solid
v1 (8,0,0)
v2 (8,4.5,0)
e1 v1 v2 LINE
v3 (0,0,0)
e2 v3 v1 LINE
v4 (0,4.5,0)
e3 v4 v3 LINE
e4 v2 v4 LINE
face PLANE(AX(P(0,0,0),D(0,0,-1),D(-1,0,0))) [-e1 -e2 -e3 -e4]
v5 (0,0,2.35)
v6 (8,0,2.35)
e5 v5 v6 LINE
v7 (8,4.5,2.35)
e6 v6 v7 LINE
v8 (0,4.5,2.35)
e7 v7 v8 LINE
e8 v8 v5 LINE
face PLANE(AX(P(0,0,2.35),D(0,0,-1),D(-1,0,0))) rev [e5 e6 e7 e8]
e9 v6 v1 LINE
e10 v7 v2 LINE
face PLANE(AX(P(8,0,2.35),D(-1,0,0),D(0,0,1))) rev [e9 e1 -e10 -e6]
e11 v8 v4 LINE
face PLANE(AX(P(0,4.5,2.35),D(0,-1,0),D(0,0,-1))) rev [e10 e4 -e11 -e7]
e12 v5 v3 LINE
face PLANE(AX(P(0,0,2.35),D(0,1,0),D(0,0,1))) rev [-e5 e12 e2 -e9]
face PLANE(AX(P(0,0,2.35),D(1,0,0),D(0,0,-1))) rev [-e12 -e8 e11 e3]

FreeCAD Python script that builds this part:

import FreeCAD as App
import Part
import Sketcher

V = App.Vector


def add_polygon(sketch, points):
    """Adds a closed chain of lines whose ends are joined by coincident constraints."""
    first, n = sketch.GeometryCount, len(points)
    for a, b in zip(points, points[1:] + points[:1]):
        sketch.addGeometry(Part.LineSegment(App.Vector(*a, 0), App.Vector(*b, 0)), False)
    for i in range(n):
        sketch.addConstraint(Sketcher.Constraint("Coincident", first + i, 2, first + (i + 1) % n, 1))

doc = App.newDocument("Part")
body = doc.addObject("PartDesign::Body", "Body")

# Sketch on XY plane
sketch1 = body.newObject("Sketcher::SketchObject", "Sketch")
sketch1.AttachmentSupport = (doc.getObject("XY_Plane"), [""])
sketch1.MapMode = "FlatFace"
add_polygon(sketch1, [(0, 4.5), (0, 0), (8, 0), (8, 4.5)])  # lines 0-3
sketch1.addConstraint(Sketcher.Constraint("Vertical", 0))
sketch1.addConstraint(Sketcher.Constraint("Horizontal", 1))
sketch1.addConstraint(Sketcher.Constraint("Vertical", 2))
sketch1.addConstraint(Sketcher.Constraint("Horizontal", 3))
sketch1.addConstraint(Sketcher.Constraint("Coincident", 0, 2, -1, 1))
sketch1.addConstraint(Sketcher.Constraint("DistanceX", 1, 1, 1, 2, 8.0))
sketch1.addConstraint(Sketcher.Constraint("DistanceY", 0, 2, 0, 1, 4.5))
pad1 = body.newObject("PartDesign::Pad", "Pad")
pad1.Profile = sketch1
pad1.Length = 2.35

doc.recompute()
